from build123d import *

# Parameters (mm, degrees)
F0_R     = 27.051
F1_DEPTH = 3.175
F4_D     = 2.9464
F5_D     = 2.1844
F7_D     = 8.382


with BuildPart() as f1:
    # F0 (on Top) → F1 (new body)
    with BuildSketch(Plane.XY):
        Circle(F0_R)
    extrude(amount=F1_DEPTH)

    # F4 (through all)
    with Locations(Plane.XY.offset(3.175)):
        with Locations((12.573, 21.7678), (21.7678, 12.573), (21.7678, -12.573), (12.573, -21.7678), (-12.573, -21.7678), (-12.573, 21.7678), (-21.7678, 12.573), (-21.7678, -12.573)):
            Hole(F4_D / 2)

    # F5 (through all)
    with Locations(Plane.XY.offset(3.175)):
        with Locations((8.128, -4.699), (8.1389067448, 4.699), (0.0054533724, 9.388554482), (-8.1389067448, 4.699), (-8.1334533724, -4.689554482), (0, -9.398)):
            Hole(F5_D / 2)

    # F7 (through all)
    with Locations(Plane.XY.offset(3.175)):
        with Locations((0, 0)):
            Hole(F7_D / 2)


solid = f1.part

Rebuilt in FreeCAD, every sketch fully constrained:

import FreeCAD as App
import Part
import Sketcher
Q = App.Units.Quantity

doc = App.newDocument("Part")
params = doc.addObject("Spreadsheet::Sheet", "Params")
for row, (alias, value) in enumerate([
    ("sketch1_diameter", "2.13 in"),
    ("pad1_length", "0.125 in"),
    ("sketch2_diameter", "0.116 in"),
    ("hole_diameter", "0.116 in"),
    ("sketch3_diameter", "0.086 in"),
    ("hole2_diameter", "0.086 in"),
    ("sketch4_diameter", "0.33 in"),
    ("hole3_diameter", "0.33 in"),
], start=1):
    params.set(f"A{row}", alias)
    params.set(f"B{row}", "=" + value)
    params.setAlias(f"B{row}", alias)

body = doc.addObject("PartDesign::Body", "Body")

# Sketch on XY plane
sketch1 = doc.addObject("Sketcher::SketchObject", "Sketch")
body.addObject(sketch1)
sketch1.AttachmentSupport = (doc.XY_Plane, [""])
sketch1.MapMode = "FlatFace"
sketch1.addGeometry(Part.Circle(App.Vector(0, 0, 0), App.Vector(0, 0, 1), 27.051), False)
sketch1.addConstraint([
    Sketcher.Constraint("Coincident", 0, 3, -1, 1),
    Sketcher.Constraint("Diameter", 0, Q("2.13 in")),
])
sketch1.setExpression("Constraints[1]", "Params.sketch1_diameter")
pad1 = doc.addObject("PartDesign::Pad", "Pad")
body.addObject(pad1)
pad1.Profile = sketch1
pad1.setExpression("Length", "Params.pad1_length")

# Sketch on XY plane
sketch2 = doc.addObject("Sketcher::SketchObject", "Sketch001")
body.addObject(sketch2)
sketch2.AttachmentSupport = (doc.XY_Plane, [""])
sketch2.MapMode = "FlatFace"
sketch2.AttachmentOffset = App.Placement(App.Vector(0, 0, 0.125 * 25.4), App.Rotation())
sketch2.addGeometry([
    Part.Circle(App.Vector(12.573, 21.7678, 0), App.Vector(0, 0, 1), 1.4732),  # 0
    Part.Circle(App.Vector(21.7678, 12.573, 0), App.Vector(0, 0, 1), 1.4732),  # 1
    Part.Circle(App.Vector(21.7678, -12.573, 0), App.Vector(0, 0, 1), 1.4732),  # 2
    Part.Circle(App.Vector(12.573, -21.7678, 0), App.Vector(0, 0, 1), 1.4732),  # 3
    Part.Circle(App.Vector(-12.573, -21.7678, 0), App.Vector(0, 0, 1), 1.4732),  # 4
    Part.Circle(App.Vector(-12.573, 21.7678, 0), App.Vector(0, 0, 1), 1.4732),  # 5
    Part.Circle(App.Vector(-21.7678, 12.573, 0), App.Vector(0, 0, 1), 1.4732),  # 6
    Part.Circle(App.Vector(-21.7678, -12.573, 0), App.Vector(0, 0, 1), 1.4732),  # 7
], False)
sketch2.addConstraint([
    Sketcher.Constraint("Equal", 0, 1),
    Sketcher.Constraint("Equal", 1, 2),
    Sketcher.Constraint("Equal", 2, 3),
    Sketcher.Constraint("Equal", 3, 4),
    Sketcher.Constraint("Equal", 4, 5),
    Sketcher.Constraint("Equal", 5, 6),
    Sketcher.Constraint("Equal", 6, 7),
    Sketcher.Constraint("Symmetric", 0, 3, 4, 3, -1, 1),
    Sketcher.Constraint("Symmetric", 3, 3, 5, 3, -1, 1),
    Sketcher.Constraint("Symmetric", 2, 3, 6, 3, -1, 1),
    Sketcher.Constraint("Symmetric", 1, 3, 7, 3, -1, 1),
    Sketcher.Constraint("Symmetric", 3, 3, 4, 3, -2),
    Sketcher.Constraint("Symmetric", 1, 3, 6, 3, -2),
    Sketcher.Constraint("Diameter", 0, Q("0.116 in")),
    Sketcher.Constraint("DistanceY", 2, 3, 1, 3, Q("0.99 in")),
    Sketcher.Constraint("DistanceX", 4, 3, 3, 3, Q("0.99 in")),
    Sketcher.Constraint("DistanceY", -1, 1, 0, 3, Q("0.857 in")),
    Sketcher.Constraint("DistanceX", -1, 1, 1, 3, Q("0.857 in")),
])
sketch2.setExpression("Constraints[13]", "Params.sketch2_diameter")
doc.recompute()
hole = doc.addObject("PartDesign::Hole", "Hole")
body.addObject(hole)
hole.Profile = sketch2
hole.ThreadType = "None"
hole.setExpression("Diameter", "Params.hole_diameter")
hole.DepthType = "ThroughAll"

# Sketch on XY plane
sketch3 = doc.addObject("Sketcher::SketchObject", "Sketch002")
body.addObject(sketch3)
sketch3.AttachmentSupport = (doc.XY_Plane, [""])
sketch3.MapMode = "FlatFace"
sketch3.AttachmentOffset = App.Placement(App.Vector(0, 0, 0.125 * 25.4), App.Rotation())
sketch3.addGeometry([
    Part.Circle(App.Vector(8.128, -4.699, 0), App.Vector(0, 0, 1), 1.0922),  # 0
    Part.Circle(App.Vector(8.138907, 4.699, 0), App.Vector(0, 0, 1), 1.0922),  # 1
    Part.Circle(App.Vector(0.005453, 9.388554, 0), App.Vector(0, 0, 1), 1.0922),  # 2
    Part.Circle(App.Vector(-8.138907, 4.699, 0), App.Vector(0, 0, 1), 1.0922),  # 3
    Part.Circle(App.Vector(-8.133453, -4.689554, 0), App.Vector(0, 0, 1), 1.0922),  # 4
    Part.Circle(App.Vector(0, -9.398, 0), App.Vector(0, 0, 1), 1.0922),  # 5
], False)
sketch3.addConstraint([
    Sketcher.Constraint("Equal", 0, 1),
    Sketcher.Constraint("Equal", 1, 2),
    Sketcher.Constraint("Equal", 2, 3),
    Sketcher.Constraint("Equal", 3, 4),
    Sketcher.Constraint("Equal", 4, 5),
    Sketcher.Constraint("Symmetric", 1, 3, 3, 3, -2),
    Sketcher.Constraint("PointOnObject", 5, 3, -2),
    Sketcher.Constraint("Diameter", 0, Q("0.086 in")),
    Sketcher.Constraint("DistanceX", -1, 1, 0, 3, Q("0.32 in")),
    Sketcher.Constraint("DistanceY", 5, 3, -1, 1, Q("0.37 in")),
    Sketcher.Constraint("DistanceY", 0, 3, 1, 3, Q("0.37 in")),
    Sketcher.Constraint("DistanceY", 0, 3, -1, 1, Q("0.185 in")),
    Sketcher.Constraint("DistanceX", 3, 3, 2, 3, 8.14436),
    Sketcher.Constraint("DistanceY", 4, 3, 2, 3, 14.078109),
    Sketcher.Constraint("DistanceX", 4, 3, 1, 3, 16.27236),
    Sketcher.Constraint("DistanceX", -1, 1, 1, 3, 8.138907),
    Sketcher.Constraint("DistanceY", -1, 1, 2, 3, 9.388554),
])
sketch3.setExpression("Constraints[7]", "Params.sketch3_diameter")
doc.recompute()
hole2 = doc.addObject("PartDesign::Hole", "Hole001")
body.addObject(hole2)
hole2.Profile = sketch3
hole2.ThreadType = "None"
hole2.setExpression("Diameter", "Params.hole2_diameter")
hole2.DepthType = "ThroughAll"

# Sketch on XY plane
sketch4 = doc.addObject("Sketcher::SketchObject", "Sketch003")
body.addObject(sketch4)
sketch4.AttachmentSupport = (doc.XY_Plane, [""])
sketch4.MapMode = "FlatFace"
sketch4.AttachmentOffset = App.Placement(App.Vector(0, 0, 0.125 * 25.4), App.Rotation())
sketch4.addGeometry(Part.Circle(App.Vector(0, 0, 0), App.Vector(0, 0, 1), 4.191), False)
sketch4.addConstraint([
    Sketcher.Constraint("Coincident", 0, 3, -1, 1),
    Sketcher.Constraint("Diameter", 0, Q("0.33 in")),
])
sketch4.setExpression("Constraints[1]", "Params.sketch4_diameter")
doc.recompute()
hole3 = doc.addObject("PartDesign::Hole", "Hole002")
body.addObject(hole3)
hole3.Profile = sketch4
hole3.ThreadType = "None"
hole3.setExpression("Diameter", "Params.hole3_diameter")
hole3.DepthType = "ThroughAll"

doc.recompute()
